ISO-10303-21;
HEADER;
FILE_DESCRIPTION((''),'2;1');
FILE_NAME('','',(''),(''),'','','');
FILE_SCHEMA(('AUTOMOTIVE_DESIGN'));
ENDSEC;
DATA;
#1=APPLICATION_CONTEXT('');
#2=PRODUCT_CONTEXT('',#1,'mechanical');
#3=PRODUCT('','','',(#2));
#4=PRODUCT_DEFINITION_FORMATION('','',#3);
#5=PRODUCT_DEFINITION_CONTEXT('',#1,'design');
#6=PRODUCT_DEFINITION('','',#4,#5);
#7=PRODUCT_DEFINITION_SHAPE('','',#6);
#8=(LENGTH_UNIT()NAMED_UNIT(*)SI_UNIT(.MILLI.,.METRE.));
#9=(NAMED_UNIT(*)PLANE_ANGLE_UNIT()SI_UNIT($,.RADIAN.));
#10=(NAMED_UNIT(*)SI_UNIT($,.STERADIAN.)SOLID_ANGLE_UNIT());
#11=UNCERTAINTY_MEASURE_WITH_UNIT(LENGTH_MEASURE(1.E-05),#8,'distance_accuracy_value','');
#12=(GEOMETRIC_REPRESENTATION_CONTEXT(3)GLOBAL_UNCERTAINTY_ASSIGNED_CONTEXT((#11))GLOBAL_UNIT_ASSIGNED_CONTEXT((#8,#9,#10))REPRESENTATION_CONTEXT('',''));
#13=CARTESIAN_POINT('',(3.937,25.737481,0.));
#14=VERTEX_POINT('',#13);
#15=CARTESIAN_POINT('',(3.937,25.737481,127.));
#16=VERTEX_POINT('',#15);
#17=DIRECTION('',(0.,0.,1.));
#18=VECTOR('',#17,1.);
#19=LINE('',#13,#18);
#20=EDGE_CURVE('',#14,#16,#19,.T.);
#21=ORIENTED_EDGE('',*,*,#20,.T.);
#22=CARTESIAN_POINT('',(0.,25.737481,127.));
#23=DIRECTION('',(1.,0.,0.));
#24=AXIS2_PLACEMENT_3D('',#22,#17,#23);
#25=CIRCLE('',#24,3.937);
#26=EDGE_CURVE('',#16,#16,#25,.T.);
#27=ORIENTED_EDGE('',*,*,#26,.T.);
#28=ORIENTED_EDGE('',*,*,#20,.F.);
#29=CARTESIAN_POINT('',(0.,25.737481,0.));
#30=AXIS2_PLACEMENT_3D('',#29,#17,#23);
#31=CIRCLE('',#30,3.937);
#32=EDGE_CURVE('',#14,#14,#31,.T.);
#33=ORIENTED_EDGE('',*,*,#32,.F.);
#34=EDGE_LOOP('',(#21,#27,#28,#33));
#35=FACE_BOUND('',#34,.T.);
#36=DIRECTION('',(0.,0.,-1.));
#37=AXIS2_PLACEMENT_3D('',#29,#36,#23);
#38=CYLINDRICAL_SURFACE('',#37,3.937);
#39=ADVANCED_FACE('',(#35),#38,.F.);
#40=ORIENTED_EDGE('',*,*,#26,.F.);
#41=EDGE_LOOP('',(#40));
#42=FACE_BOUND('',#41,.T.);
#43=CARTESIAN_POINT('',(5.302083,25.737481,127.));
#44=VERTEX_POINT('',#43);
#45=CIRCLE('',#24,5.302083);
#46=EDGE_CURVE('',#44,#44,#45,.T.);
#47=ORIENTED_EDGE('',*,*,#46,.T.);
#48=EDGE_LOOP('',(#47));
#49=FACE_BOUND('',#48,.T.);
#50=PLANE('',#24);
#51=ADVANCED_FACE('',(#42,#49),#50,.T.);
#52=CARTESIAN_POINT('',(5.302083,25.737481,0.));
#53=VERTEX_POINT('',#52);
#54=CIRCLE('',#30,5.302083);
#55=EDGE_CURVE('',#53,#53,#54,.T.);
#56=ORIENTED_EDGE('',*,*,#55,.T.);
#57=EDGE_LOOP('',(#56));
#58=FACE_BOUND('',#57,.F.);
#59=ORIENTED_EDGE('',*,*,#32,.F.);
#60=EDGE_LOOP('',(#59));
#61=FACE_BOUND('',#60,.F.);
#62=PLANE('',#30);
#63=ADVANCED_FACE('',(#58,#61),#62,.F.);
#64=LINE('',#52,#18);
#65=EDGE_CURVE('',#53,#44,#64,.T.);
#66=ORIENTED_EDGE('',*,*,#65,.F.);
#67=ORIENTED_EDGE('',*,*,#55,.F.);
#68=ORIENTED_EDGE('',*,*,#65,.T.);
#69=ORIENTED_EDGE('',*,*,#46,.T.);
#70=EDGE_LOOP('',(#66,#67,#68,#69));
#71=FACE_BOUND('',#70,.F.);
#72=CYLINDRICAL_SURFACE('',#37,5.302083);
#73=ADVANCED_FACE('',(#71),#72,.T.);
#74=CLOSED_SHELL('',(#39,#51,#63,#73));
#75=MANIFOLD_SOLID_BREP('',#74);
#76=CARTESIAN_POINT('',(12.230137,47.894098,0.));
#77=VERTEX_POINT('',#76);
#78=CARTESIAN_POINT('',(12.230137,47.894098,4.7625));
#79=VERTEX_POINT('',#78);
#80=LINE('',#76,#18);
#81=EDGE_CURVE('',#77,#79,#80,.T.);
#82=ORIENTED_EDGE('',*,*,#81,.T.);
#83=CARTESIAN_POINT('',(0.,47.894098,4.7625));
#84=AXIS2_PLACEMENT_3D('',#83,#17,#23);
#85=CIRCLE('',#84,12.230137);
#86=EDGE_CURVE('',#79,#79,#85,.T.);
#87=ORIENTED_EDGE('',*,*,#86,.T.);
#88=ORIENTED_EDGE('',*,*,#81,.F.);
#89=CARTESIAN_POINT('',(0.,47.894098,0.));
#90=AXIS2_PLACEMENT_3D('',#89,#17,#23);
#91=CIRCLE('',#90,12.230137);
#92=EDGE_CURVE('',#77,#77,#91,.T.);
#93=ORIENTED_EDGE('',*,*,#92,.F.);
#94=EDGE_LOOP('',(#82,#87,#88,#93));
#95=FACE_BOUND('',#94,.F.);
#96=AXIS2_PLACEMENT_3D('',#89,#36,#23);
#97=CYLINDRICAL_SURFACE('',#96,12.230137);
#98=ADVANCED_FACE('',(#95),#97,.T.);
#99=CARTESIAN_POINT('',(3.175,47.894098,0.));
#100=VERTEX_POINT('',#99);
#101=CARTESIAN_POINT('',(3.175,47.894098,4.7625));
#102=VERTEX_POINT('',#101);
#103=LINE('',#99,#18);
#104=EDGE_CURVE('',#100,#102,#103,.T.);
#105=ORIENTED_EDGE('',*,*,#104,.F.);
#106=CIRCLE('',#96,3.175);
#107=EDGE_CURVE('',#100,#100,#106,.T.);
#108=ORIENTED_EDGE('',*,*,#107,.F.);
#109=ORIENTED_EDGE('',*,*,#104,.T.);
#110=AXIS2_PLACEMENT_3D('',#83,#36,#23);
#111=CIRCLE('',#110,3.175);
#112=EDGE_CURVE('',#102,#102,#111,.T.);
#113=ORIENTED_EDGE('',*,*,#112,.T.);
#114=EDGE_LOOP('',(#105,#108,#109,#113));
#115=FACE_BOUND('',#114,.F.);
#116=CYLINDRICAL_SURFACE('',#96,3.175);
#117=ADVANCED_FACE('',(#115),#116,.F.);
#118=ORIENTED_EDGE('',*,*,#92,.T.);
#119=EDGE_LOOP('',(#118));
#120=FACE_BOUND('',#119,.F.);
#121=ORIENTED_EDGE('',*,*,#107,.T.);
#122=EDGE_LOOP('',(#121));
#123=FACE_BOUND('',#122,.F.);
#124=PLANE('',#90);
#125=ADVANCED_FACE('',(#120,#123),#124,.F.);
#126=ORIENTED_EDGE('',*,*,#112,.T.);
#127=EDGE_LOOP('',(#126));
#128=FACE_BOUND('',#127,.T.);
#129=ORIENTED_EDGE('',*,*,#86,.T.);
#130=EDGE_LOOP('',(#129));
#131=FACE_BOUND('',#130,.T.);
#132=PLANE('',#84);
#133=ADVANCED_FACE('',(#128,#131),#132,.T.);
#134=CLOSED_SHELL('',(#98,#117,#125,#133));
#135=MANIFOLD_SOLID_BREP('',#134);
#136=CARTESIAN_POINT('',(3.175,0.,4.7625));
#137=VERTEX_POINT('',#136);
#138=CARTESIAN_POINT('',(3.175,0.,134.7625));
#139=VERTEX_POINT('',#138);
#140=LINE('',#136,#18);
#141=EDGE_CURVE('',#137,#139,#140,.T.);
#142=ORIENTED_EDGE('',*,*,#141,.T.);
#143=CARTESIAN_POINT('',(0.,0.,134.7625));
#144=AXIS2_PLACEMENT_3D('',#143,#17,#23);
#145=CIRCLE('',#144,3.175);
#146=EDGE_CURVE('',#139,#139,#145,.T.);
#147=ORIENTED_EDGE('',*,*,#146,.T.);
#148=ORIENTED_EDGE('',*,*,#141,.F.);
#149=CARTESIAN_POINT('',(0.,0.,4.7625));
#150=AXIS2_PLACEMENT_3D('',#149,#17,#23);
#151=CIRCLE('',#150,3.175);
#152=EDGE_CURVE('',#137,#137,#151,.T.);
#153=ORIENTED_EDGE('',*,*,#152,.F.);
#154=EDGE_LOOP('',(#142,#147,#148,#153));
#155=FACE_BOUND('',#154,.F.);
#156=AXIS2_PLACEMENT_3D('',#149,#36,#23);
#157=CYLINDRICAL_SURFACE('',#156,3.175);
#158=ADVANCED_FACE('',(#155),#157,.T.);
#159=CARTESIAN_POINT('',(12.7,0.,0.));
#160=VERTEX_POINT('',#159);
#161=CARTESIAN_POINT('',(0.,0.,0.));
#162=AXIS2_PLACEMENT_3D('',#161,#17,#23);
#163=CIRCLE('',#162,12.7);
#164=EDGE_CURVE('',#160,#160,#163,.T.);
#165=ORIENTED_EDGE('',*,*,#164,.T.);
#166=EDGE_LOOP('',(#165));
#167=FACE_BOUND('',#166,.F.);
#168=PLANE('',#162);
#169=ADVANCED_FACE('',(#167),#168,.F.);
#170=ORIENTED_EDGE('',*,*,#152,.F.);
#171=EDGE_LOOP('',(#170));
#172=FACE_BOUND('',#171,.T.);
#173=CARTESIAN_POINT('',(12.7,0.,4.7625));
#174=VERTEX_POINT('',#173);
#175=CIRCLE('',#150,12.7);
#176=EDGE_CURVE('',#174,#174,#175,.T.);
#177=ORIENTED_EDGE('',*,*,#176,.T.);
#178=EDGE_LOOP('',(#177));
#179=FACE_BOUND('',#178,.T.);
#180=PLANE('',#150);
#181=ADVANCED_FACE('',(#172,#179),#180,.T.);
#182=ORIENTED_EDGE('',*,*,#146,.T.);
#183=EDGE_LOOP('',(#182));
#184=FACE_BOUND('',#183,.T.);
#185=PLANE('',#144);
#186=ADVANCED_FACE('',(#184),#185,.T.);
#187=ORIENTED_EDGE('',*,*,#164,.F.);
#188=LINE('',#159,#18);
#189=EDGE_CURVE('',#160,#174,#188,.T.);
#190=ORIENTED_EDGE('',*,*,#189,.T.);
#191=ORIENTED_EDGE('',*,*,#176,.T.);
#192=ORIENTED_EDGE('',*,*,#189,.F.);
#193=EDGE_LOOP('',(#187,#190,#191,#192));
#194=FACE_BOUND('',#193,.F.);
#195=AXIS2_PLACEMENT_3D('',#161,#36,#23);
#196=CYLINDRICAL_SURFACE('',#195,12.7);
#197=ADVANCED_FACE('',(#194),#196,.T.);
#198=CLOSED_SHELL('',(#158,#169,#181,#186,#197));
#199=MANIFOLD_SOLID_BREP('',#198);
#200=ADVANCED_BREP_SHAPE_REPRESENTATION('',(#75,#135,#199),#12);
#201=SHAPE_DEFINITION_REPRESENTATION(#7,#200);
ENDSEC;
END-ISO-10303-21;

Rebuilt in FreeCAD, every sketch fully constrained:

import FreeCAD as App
import Part
import Sketcher

V = App.Vector
Q = App.Units.Quantity

doc = App.newDocument("Part")
body = doc.addObject("PartDesign::Body", "Body")

sketch1 = body.newObject("Sketcher::SketchObject", "Sketch")
sketch1.AttachmentSupport = (doc.getObject("XY_Plane"), [""])
sketch1.MapMode = "FlatFace"
sketch1.addGeometry(Part.Circle(V(0, 0, 0), V(0, 0, 1), 13), False)
sketch1.addConstraint(Sketcher.Constraint("Coincident", 0, 3, -1, 1))
sketch1.addConstraint(Sketcher.Constraint("Diameter", 0, Q("1 in")))
pad1 = body.newObject("PartDesign::Pad", "Pad")
pad1.Profile = sketch1
pad1.Length = Q("0.1875 in")

sketch2 = body.newObject("Sketcher::SketchObject", "Sketch001")
sketch2.AttachmentSupport = (doc.getObject("XY_Plane"), [""])
sketch2.MapMode = "FlatFace"
sketch2.AttachmentOffset = App.Placement(V(0, 0, 0.1875 * 25.4), App.Rotation())
sketch2.addGeometry(Part.Circle(V(0, 0, 0), V(0, 0, 1), 3.2), False)
sketch2.addConstraint(Sketcher.Constraint("Coincident", 0, 3, -1, 1))
sketch2.addConstraint(Sketcher.Constraint("Diameter", 0, Q("0.25 in")))
pad2 = body.newObject("PartDesign::Pad", "Pad001")
pad2.Profile = sketch2
pad2.Length = 130
body2 = doc.addObject("PartDesign::Body", "Body001")

sketch3 = body2.newObject("Sketcher::SketchObject", "Sketch002")
sketch3.AttachmentSupport = (doc.getObject("XY_Plane001"), [""])
sketch3.MapMode = "FlatFace"
sketch3.addGeometry(Part.Circle(V(0, 48, 0), V(0, 0, 1), 12), False)
sketch3.addConstraint(Sketcher.Constraint("PointOnObject", 0, 3, -2))
sketch3.addConstraint(Sketcher.Constraint("Diameter", 0, 24.460274))
sketch3.addConstraint(Sketcher.Constraint("DistanceY", -1, 1, 0, 3, 47.894098))
pad3 = body2.newObject("PartDesign::Pad", "Pad002")
pad3.Profile = sketch3
pad3.Length = Q("0.1875 in")

sketch4 = body2.newObject("Sketcher::SketchObject", "Sketch003")
sketch4.AttachmentSupport = (doc.getObject("XY_Plane001"), [""])
sketch4.MapMode = "FlatFace"
sketch4.addGeometry(Part.Circle(V(0, 47.9, 0), V(0, 0, 1), 3.2), False)
sketch4.addConstraint(Sketcher.Constraint("PointOnObject", 0, 3, -2))
sketch4.addConstraint(Sketcher.Constraint("Diameter", 0, Q("0.25 in")))
sketch4.addConstraint(Sketcher.Constraint("DistanceY", -1, 1, 0, 3, 47.894098))
pocket1 = body2.newObject("PartDesign::Pocket", "Pocket")
pocket1.Profile = sketch4
pocket1.Length = Q("0.268 in")
pocket1.Reversed = True
body3 = doc.addObject("PartDesign::Body", "Body002")

sketch5 = body3.newObject("Sketcher::SketchObject", "Sketch004")
sketch5.AttachmentSupport = (doc.getObject("XY_Plane002"), [""])
sketch5.MapMode = "FlatFace"
sketch5.addGeometry(Part.Circle(V(0, 25.7, 0), V(0, 0, 1), 5.3), False)
sketch5.addGeometry(Part.Circle(V(0, 25.7, 0), V(0, 0, 1), 3.9), False)
sketch5.addConstraint(Sketcher.Constraint("Coincident", 1, 3, 0, 3))
sketch5.addConstraint(Sketcher.Constraint("PointOnObject", 0, 3, -2))
sketch5.addConstraint(Sketcher.Constraint("Diameter", 1, Q("0.31 in")))
sketch5.addConstraint(Sketcher.Constraint("Diameter", 0, 10.604166))
sketch5.addConstraint(Sketcher.Constraint("DistanceY", -1, 1, 0, 3, 25.737481))
pad4 = body3.newObject("PartDesign::Pad", "Pad003")
pad4.Profile = sketch5
pad4.Length = Q("5 in")

doc.recompute()
